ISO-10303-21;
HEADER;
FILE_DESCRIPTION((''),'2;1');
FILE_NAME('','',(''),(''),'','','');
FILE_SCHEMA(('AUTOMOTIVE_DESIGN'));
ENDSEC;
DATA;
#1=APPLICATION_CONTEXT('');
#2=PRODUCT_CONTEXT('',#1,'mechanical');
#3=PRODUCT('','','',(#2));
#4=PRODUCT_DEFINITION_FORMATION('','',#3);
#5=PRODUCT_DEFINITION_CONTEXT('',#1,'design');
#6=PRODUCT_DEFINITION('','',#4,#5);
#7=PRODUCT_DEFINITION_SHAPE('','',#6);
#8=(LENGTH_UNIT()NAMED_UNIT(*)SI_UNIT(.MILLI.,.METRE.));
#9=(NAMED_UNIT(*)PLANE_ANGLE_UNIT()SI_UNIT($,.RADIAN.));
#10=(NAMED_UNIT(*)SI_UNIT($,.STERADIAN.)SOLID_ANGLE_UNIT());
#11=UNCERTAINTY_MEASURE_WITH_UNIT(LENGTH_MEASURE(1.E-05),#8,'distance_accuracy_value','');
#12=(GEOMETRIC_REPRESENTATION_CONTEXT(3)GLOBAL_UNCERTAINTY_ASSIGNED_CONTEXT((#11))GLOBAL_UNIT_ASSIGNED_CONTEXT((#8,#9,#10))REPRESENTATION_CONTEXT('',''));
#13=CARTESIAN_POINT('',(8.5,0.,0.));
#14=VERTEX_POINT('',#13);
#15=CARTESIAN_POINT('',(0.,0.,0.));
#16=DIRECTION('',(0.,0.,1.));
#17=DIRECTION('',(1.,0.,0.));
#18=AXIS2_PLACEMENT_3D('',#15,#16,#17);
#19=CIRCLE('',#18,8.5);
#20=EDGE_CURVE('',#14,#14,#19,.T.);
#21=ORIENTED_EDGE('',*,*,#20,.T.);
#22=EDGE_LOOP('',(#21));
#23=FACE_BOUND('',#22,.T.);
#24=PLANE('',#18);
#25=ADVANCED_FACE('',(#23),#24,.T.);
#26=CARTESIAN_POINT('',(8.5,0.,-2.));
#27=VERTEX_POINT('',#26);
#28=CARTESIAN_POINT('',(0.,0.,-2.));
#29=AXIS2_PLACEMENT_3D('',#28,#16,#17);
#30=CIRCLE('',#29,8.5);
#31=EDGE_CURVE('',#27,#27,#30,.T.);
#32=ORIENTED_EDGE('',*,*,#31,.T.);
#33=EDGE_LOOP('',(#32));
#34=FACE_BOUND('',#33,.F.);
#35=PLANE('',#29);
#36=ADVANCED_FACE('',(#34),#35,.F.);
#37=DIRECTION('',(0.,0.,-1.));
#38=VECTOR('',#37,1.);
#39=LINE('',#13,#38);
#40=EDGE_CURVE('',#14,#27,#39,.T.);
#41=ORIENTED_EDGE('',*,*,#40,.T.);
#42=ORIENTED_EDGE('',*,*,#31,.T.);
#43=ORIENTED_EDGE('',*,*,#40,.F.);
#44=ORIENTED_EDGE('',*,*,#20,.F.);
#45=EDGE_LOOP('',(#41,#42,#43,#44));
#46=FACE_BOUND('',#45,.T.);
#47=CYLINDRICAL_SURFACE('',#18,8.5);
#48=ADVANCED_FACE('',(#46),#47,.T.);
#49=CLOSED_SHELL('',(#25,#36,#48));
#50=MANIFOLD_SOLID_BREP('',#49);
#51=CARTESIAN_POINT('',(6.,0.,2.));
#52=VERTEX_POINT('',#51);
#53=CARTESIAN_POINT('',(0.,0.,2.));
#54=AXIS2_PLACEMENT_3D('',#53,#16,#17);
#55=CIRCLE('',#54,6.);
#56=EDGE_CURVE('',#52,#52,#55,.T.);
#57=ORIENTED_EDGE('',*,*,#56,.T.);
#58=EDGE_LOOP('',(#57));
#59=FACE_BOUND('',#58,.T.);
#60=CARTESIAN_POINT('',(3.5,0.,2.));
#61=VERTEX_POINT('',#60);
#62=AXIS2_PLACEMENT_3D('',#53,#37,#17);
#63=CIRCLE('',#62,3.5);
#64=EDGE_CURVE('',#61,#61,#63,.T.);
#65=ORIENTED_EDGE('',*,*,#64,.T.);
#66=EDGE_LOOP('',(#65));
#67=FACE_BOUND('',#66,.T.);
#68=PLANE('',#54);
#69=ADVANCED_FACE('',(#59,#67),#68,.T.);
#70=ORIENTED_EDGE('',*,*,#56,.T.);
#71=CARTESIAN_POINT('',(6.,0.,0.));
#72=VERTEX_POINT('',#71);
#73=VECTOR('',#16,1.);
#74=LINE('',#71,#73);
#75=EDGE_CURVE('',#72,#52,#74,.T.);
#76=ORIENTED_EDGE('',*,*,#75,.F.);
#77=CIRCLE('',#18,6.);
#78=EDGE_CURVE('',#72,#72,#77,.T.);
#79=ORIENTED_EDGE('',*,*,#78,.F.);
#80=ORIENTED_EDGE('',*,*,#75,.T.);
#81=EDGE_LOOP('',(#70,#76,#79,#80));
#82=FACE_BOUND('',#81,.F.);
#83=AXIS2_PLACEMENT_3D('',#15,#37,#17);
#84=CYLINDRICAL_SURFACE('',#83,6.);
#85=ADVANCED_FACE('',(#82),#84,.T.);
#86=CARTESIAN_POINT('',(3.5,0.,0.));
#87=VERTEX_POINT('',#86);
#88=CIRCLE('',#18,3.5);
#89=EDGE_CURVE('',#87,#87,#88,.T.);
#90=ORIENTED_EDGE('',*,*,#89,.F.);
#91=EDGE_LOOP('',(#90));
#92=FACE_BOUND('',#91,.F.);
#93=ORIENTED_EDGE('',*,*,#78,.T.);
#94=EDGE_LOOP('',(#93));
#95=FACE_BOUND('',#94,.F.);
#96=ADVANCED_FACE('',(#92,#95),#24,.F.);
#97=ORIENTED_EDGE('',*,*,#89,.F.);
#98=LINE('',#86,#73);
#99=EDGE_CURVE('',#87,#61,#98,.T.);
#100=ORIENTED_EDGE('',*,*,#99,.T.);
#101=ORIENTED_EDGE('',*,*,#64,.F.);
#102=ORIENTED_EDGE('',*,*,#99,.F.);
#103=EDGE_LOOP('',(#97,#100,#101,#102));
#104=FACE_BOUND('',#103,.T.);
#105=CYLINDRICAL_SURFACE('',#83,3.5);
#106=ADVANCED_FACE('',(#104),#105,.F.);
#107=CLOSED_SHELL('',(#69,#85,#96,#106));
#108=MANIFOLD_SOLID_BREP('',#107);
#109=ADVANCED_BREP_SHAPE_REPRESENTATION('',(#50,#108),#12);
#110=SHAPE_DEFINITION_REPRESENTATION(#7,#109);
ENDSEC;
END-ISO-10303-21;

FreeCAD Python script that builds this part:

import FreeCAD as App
import Part
import Sketcher
from FreeCAD import Vector
Q = App.Units.Quantity

doc = App.newDocument("Part")
params = doc.addObject("Spreadsheet::Sheet", "Params")
for row, (alias, value) in enumerate([
    ("sketch1_diameter", "17 mm"),
    ("pad1_length", "2 mm"),
    ("sketch2_diameter", "12 mm"),
    ("pad2_length", "2 mm"),
    ("sketch3_diameter", "7 mm"),
    ("pocket1_length", "25 mm"),
], start=1):
    params.set(f"A{row}", alias)
    params.set(f"B{row}", "=" + value)
    params.setAlias(f"B{row}", alias)

body = doc.addObject("PartDesign::Body", "Body")

# Sketch on XY plane
sketch1 = body.newObject("Sketcher::SketchObject", "Sketch")
sketch1.AttachmentSupport = (doc.getObject("XY_Plane"), [""])
sketch1.MapMode = "FlatFace"
sketch1.addGeometry(Part.Circle(Vector(0, 0, 0), Vector(0, 0, 1), 8), False)
sketch1.addConstraint([
    Sketcher.Constraint("Coincident", 0, 3, -1, 1),
    Sketcher.Constraint("Diameter", 0, Q("17 mm")),
])
sketch1.setExpression("Constraints[1]", "Params.sketch1_diameter")
pad1 = body.newObject("PartDesign::Pad", "Pad")
pad1.Profile = sketch1
pad1.setExpression("Length", "Params.pad1_length")
pad1.Reversed = True
body2 = doc.addObject("PartDesign::Body", "Body001")

# Sketch on XY plane
sketch2 = body2.newObject("Sketcher::SketchObject", "Sketch001")
sketch2.AttachmentSupport = (doc.getObject("XY_Plane001"), [""])
sketch2.MapMode = "FlatFace"
sketch2.addGeometry(Part.Circle(Vector(0, 0, 0), Vector(0, 0, 1), 6), False)
sketch2.addConstraint([
    Sketcher.Constraint("Coincident", 0, 3, -1, 1),
    Sketcher.Constraint("Diameter", 0, Q("12 mm")),
])
sketch2.setExpression("Constraints[1]", "Params.sketch2_diameter")
pad2 = body2.newObject("PartDesign::Pad", "Pad001")
pad2.Profile = sketch2
pad2.setExpression("Length", "Params.pad2_length")

# Sketch on XY plane
sketch3 = body2.newObject("Sketcher::SketchObject", "Sketch002")
sketch3.AttachmentSupport = (doc.getObject("XY_Plane001"), [""])
sketch3.MapMode = "FlatFace"
sketch3.addGeometry(Part.Circle(Vector(0, 0, 0), Vector(0, 0, 1), 3.5), False)
sketch3.addConstraint([
    Sketcher.Constraint("Coincident", 0, 3, -1, 1),
    Sketcher.Constraint("Diameter", 0, Q("7 mm")),
])
sketch3.setExpression("Constraints[1]", "Params.sketch3_diameter")
pocket1 = body2.newObject("PartDesign::Pocket", "Pocket")
pocket1.Profile = sketch3
pocket1.setExpression("Length", "Params.pocket1_length")
pocket1.Reversed = True

doc.recompute()
